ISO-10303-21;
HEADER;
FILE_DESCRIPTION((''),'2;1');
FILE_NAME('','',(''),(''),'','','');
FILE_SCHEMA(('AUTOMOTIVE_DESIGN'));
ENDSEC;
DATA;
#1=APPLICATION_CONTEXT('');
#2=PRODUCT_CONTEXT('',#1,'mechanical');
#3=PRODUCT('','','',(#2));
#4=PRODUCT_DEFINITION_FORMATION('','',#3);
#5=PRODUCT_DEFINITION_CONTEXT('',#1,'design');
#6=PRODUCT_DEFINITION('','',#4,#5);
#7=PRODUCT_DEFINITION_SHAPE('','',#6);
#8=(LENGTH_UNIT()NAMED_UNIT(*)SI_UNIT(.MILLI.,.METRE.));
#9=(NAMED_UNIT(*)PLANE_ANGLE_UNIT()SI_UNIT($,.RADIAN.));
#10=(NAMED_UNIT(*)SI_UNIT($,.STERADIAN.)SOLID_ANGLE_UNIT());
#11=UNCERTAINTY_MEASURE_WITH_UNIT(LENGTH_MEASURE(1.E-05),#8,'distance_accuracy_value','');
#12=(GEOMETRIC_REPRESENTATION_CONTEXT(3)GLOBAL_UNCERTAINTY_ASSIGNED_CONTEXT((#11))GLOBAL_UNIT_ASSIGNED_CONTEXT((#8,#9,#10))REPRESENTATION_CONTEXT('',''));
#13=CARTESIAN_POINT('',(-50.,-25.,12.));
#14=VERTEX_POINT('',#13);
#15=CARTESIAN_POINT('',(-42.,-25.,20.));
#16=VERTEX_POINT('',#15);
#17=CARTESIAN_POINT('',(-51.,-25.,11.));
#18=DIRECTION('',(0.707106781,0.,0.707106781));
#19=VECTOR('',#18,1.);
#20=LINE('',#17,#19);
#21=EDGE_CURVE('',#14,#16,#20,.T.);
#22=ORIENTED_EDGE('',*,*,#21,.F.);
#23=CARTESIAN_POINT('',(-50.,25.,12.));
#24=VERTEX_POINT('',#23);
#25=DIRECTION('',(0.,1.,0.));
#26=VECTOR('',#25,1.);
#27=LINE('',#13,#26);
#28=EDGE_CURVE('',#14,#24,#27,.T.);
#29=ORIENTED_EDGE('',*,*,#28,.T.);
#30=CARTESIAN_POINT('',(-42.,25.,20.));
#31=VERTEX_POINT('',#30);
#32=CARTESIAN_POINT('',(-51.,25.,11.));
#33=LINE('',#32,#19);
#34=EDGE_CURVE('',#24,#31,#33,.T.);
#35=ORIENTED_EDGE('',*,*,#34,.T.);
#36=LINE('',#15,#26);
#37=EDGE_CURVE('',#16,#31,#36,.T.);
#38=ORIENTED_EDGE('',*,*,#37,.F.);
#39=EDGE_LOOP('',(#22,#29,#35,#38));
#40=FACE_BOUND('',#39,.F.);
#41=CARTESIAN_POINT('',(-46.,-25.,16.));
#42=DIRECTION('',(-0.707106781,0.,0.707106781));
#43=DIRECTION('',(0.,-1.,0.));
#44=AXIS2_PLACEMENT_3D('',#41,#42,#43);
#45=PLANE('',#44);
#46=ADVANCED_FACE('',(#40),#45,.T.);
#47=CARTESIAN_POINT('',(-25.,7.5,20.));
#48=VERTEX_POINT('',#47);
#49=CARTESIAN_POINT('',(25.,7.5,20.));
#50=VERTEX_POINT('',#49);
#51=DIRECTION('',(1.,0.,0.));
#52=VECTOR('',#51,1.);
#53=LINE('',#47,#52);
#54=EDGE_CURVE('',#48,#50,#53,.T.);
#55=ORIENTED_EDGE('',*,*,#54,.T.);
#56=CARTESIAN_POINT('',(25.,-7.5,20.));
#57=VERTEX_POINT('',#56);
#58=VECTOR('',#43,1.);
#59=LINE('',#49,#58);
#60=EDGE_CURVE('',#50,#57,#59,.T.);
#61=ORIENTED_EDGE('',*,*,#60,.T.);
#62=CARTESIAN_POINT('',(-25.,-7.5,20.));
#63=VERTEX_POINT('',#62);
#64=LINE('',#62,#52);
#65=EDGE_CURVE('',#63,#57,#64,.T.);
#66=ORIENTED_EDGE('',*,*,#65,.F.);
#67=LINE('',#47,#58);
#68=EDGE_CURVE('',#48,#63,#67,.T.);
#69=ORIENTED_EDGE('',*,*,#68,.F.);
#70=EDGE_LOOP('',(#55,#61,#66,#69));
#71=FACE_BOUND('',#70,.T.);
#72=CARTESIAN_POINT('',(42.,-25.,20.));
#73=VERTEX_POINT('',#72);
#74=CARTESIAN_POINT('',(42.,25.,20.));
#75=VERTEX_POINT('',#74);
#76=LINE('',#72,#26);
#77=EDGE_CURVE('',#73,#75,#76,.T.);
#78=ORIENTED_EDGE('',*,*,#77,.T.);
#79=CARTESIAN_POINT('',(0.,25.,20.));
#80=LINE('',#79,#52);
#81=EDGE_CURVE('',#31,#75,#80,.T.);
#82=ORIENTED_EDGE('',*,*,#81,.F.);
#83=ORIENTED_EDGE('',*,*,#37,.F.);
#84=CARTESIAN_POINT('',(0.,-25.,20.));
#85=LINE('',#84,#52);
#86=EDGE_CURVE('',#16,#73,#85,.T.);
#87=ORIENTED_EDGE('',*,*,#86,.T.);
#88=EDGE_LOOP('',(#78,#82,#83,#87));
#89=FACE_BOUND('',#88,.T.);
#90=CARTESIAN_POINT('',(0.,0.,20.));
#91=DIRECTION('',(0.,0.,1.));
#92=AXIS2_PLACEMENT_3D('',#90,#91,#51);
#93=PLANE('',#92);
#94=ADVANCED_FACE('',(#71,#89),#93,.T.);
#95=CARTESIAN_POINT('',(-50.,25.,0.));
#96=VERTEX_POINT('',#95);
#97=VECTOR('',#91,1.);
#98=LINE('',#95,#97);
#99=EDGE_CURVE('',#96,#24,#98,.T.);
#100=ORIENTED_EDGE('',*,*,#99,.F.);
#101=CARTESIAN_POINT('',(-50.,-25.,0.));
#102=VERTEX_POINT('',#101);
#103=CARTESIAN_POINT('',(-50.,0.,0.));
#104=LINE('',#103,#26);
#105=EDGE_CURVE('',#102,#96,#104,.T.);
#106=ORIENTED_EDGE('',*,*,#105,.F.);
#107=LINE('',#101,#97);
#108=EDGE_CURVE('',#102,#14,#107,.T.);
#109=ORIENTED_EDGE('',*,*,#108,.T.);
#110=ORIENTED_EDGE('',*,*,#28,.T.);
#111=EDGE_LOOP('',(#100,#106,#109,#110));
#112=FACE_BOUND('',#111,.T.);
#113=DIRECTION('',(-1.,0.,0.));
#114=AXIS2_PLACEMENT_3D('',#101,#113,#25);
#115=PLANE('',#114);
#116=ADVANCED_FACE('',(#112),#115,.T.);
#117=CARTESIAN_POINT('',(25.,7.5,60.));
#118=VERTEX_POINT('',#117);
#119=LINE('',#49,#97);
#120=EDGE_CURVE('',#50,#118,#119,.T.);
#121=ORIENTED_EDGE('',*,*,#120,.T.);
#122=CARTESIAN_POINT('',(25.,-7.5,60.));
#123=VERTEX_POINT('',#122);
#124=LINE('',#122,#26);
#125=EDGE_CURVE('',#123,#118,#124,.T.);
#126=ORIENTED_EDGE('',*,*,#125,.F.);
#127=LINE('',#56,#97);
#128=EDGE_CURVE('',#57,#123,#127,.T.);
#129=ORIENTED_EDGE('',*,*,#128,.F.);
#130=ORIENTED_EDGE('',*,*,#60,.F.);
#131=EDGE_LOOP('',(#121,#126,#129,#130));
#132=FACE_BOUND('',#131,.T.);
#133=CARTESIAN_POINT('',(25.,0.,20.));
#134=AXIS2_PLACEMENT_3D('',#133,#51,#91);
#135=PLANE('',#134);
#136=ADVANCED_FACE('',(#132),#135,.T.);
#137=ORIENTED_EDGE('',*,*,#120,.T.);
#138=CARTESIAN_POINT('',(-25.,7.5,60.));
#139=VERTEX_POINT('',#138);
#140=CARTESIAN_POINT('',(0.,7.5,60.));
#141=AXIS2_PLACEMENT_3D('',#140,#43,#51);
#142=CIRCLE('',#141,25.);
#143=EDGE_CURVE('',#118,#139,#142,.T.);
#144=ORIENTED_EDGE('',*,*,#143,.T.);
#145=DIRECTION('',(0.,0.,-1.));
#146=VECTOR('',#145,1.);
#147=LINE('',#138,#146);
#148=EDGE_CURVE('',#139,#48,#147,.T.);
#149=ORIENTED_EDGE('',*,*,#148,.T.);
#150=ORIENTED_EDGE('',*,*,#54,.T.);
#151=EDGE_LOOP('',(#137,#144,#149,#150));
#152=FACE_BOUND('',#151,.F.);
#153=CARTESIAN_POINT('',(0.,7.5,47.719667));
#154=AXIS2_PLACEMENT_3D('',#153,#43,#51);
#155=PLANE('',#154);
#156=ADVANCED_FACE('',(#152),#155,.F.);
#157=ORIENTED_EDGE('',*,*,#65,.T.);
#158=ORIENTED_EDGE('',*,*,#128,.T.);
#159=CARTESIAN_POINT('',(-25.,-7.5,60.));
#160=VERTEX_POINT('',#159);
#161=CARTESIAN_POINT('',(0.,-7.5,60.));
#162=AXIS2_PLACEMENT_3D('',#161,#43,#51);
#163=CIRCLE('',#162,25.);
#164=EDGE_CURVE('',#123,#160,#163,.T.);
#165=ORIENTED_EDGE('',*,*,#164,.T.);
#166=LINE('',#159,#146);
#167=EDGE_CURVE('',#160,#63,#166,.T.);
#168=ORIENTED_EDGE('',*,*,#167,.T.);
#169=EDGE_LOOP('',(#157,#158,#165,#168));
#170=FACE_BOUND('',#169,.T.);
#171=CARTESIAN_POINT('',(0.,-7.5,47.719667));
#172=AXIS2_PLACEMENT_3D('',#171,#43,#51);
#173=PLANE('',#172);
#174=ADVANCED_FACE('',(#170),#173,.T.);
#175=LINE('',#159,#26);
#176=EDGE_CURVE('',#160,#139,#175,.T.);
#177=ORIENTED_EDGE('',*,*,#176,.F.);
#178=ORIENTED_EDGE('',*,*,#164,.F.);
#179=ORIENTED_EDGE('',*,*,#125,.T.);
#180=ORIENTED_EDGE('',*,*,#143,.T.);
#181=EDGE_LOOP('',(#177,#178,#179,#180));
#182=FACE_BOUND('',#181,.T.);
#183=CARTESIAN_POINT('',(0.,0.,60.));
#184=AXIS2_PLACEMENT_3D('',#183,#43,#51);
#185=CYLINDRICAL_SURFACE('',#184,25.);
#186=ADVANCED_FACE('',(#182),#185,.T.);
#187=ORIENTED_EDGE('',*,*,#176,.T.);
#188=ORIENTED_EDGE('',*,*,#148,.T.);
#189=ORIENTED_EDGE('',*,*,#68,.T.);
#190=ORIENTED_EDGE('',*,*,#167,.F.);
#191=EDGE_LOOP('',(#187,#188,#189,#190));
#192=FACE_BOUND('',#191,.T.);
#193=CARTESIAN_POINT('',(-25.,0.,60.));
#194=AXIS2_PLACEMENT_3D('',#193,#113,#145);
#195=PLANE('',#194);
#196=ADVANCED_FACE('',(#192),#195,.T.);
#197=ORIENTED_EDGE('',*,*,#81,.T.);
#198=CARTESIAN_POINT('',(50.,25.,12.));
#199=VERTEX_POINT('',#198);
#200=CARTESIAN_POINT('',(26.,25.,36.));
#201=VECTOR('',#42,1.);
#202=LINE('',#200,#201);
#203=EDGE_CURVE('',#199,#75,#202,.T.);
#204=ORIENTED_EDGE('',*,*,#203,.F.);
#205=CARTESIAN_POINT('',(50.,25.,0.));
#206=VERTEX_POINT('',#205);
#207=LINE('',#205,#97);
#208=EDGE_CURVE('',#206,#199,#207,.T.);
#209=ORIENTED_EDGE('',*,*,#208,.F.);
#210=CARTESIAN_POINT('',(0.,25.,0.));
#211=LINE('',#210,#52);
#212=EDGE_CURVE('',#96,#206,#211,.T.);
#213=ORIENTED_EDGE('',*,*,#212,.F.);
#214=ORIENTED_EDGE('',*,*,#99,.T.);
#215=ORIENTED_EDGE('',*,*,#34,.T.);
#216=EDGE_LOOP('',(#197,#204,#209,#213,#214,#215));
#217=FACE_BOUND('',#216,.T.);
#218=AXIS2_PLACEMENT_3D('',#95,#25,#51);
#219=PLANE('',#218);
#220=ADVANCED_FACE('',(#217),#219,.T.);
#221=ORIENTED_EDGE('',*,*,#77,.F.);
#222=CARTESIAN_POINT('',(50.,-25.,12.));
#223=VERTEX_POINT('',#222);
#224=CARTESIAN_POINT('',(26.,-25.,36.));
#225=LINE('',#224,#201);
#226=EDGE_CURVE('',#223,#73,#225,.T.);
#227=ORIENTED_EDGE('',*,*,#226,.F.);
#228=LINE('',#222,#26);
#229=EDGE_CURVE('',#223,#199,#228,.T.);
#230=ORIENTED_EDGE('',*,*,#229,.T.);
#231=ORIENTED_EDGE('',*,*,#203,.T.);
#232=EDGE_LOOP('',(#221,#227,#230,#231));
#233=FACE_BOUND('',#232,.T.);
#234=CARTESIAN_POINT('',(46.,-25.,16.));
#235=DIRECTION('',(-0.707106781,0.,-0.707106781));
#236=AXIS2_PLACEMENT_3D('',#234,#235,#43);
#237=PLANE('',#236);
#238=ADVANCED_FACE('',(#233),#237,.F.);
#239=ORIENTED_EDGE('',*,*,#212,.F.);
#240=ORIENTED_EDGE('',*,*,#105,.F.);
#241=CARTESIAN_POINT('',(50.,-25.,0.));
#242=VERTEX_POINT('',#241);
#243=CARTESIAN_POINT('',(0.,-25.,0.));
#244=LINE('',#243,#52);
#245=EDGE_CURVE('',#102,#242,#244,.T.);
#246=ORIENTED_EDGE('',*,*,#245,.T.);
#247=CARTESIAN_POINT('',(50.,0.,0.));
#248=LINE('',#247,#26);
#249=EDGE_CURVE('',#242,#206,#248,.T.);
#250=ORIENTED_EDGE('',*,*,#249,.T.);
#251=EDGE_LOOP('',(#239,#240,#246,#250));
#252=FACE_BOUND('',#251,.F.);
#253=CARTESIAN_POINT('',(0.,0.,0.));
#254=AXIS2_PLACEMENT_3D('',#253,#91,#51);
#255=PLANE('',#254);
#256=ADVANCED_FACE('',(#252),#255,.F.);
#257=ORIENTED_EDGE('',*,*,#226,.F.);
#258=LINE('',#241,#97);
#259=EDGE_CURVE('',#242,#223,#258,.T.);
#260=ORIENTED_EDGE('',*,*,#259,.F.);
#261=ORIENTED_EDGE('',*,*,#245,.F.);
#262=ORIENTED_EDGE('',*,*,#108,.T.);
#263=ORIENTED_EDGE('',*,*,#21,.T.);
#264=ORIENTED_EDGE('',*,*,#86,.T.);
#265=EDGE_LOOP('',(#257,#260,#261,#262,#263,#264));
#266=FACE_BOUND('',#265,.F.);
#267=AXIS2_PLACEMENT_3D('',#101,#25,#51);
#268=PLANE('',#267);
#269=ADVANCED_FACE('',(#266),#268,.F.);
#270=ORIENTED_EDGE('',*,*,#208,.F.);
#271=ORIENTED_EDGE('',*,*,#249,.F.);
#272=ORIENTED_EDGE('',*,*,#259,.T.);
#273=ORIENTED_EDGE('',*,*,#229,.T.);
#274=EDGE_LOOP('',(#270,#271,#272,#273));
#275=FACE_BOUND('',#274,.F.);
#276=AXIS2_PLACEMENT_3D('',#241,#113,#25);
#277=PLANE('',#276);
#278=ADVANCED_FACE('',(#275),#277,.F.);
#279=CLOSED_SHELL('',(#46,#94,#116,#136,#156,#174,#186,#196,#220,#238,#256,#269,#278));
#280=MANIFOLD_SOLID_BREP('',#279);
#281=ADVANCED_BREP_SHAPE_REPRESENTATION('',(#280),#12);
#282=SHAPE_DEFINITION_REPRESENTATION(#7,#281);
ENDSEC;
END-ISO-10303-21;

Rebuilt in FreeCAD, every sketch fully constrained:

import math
import FreeCAD as App
import Part
import Sketcher

V = App.Vector
Q = App.Units.Quantity


def edges_at(feature, points):
    """Names of the edges that pass closest to the given points."""
    edges = feature.Shape.Edges
    near = lambda p: min(range(len(edges)), key=lambda i: edges[i].distToShape(Part.Vertex(*p))[0])
    return sorted({f"Edge{near(p) + 1}" for p in points})


def add_polygon(sketch, points):
    """Adds a closed chain of lines whose ends are joined by coincident constraints."""
    first, n = sketch.GeometryCount, len(points)
    for a, b in zip(points, points[1:] + points[:1]):
        sketch.addGeometry(Part.LineSegment(App.Vector(*a, 0), App.Vector(*b, 0)), False)
    for i in range(n):
        sketch.addConstraint(Sketcher.Constraint("Coincident", first + i, 2, first + (i + 1) % n, 1))

doc = App.newDocument("Part")
body = doc.addObject("PartDesign::Body", "Body")

# Sketch on XY plane
sketch1 = body.newObject("Sketcher::SketchObject", "Sketch")
sketch1.AttachmentSupport = (doc.getObject("XY_Plane"), [""])
sketch1.MapMode = "FlatFace"
add_polygon(sketch1, [(-50, 25), (-50, -25), (50, -25), (50, 25)])  # lines 0-3
sketch1.addConstraint([
    Sketcher.Constraint("Vertical", 0),
    Sketcher.Constraint("Horizontal", 1),
    Sketcher.Constraint("Vertical", 2),
    Sketcher.Constraint("Horizontal", 3),
    Sketcher.Constraint("Symmetric", 0, 2, 2, 2, -1, 1),
    Sketcher.Constraint("DistanceX", 1, 1, 1, 2, Q("100 mm")),
    Sketcher.Constraint("DistanceY", 0, 2, 0, 1, Q("50 mm")),
])
pad1 = body.newObject("PartDesign::Pad", "Pad")
pad1.Profile = sketch1
pad1.Length = 20
doc.recompute()

chamfer = body.newObject("PartDesign::Chamfer", "Chamfer")
chamfer.Base = (pad1, edges_at(pad1, [(-50, 0, 20), (50, 0, 20)]))
chamfer.Size = 8

# Sketch on XZ plane
sketch2 = body.newObject("Sketcher::SketchObject", "Sketch001")
sketch2.AttachmentSupport = (doc.getObject("XZ_Plane"), [""])
sketch2.MapMode = "FlatFace"
sketch2.addGeometry([
    Part.LineSegment(V(-25, 60, 0), V(-25, 20, 0)),
    Part.LineSegment(V(-25, 20, 0), V(25, 20, 0)),
    Part.LineSegment(V(25, 20, 0), V(25, 60, 0)),
    Part.ArcOfCircle(Part.Circle(V(0, 60, 0), V(0, 0, 1), 25), math.radians(0), math.radians(180)),
], False)
sketch2.addConstraint([
    Sketcher.Constraint("Coincident", 0, 2, 1, 1),
    Sketcher.Constraint("Coincident", 1, 2, 2, 1),
    Sketcher.Constraint("Tangent", 2, 2, 3, 1),
    Sketcher.Constraint("Tangent", 3, 2, 0, 1),
    Sketcher.Constraint("Vertical", 0),
    Sketcher.Constraint("Horizontal", 1),
    Sketcher.Constraint("Vertical", 2),
    Sketcher.Constraint("PointOnObject", 3, 3, -2),
    Sketcher.Constraint("Radius", 3, Q("25 mm")),
    Sketcher.Constraint("DistanceY", 0, 2, 0, 1, Q("40 mm")),
    Sketcher.Constraint("DistanceY", -1, 1, 3, 3, Q("60 mm")),
])
pad2 = body.newObject("PartDesign::Pad", "Pad001")
pad2.Profile = sketch2
pad2.Length = 15
pad2.Midplane = True

doc.recompute()
